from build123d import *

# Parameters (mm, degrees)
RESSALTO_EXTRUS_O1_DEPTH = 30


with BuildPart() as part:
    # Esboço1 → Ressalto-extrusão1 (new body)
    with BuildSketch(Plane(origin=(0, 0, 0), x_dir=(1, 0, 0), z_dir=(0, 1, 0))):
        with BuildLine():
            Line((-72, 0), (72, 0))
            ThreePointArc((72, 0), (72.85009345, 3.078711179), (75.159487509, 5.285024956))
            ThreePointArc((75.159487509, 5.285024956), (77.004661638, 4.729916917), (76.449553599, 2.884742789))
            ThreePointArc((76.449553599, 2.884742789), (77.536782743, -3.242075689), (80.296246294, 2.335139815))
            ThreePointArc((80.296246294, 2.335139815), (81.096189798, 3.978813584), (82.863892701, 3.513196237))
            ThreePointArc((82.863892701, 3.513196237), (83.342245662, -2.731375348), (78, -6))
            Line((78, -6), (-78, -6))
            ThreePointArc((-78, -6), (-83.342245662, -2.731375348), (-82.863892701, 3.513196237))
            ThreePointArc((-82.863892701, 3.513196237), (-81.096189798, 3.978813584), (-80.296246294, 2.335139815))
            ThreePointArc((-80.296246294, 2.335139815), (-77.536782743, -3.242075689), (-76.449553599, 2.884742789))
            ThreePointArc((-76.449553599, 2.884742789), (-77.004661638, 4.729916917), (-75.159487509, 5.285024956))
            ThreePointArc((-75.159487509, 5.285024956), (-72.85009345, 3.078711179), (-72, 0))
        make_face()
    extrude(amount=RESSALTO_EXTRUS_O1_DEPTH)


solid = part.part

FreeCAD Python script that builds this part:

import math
import FreeCAD as App
import Part
import Sketcher

V = App.Vector

doc = App.newDocument("Part")
body = doc.addObject("PartDesign::Body", "Body")

sketch1 = body.newObject("Sketcher::SketchObject", "Sketch")
sketch1.AttachmentSupport = (doc.getObject("XZ_Plane"), [""])
sketch1.MapMode = "FlatFace"
sketch1.addGeometry([
    Part.LineSegment(V(72, 0, 0), V(-72, 0, 0)),
    Part.ArcOfCircle(Part.Circle(V(-78, 0, 0), V(0, 0, 1), 6), math.radians(-62), math.radians(0)),
    Part.ArcOfCircle(Part.Circle(V(-75.8, -4.1, 0), V(0, 0, 1), 1.4), math.radians(118), math.radians(298)),
    Part.ArcOfCircle(Part.Circle(V(-78, 0, 0), V(0, 0, 1), 3.3), math.radians(-62), math.radians(225)),
    Part.ArcOfCircle(Part.Circle(V(-81.7, -2.7, 0), V(0, 0, 1), 1.4), math.radians(-144), math.radians(13)),
    Part.ArcOfCircle(Part.Circle(V(-78, 0, 0), V(0, 0, 1), 6), math.radians(90), math.radians(216)),
    Part.LineSegment(V(-78, 6, 0), V(78, 6, 0)),
    Part.ArcOfCircle(Part.Circle(V(78, 0, 0), V(0, 0, 1), 6), math.radians(-36), math.radians(90)),
    Part.ArcOfCircle(Part.Circle(V(81.7, -2.7, 0), V(0, 0, 1), 1.4), math.radians(167), math.radians(324)),
    Part.ArcOfCircle(Part.Circle(V(78, 0, 0), V(0, 0, 1), 3.3), math.radians(-45), math.radians(242)),
    Part.ArcOfCircle(Part.Circle(V(75.8, -4.1, 0), V(0, 0, 1), 1.4), math.radians(-118), math.radians(62)),
    Part.ArcOfCircle(Part.Circle(V(78, 0, 0), V(0, 0, 1), 6), math.radians(-180), math.radians(-118)),
], False)
sketch1.addConstraint([
    Sketcher.Constraint("Coincident", 0, 2, 1, 2),
    Sketcher.Constraint("Tangent", 1, 1, 2, 2),
    Sketcher.Constraint("Tangent", 2, 1, 3, 1),
    Sketcher.Constraint("Coincident", 3, 2, 4, 2),
    Sketcher.Constraint("Tangent", 4, 1, 5, 2),
    Sketcher.Constraint("Tangent", 5, 1, 6, 1),
    Sketcher.Constraint("Tangent", 6, 2, 7, 2),
    Sketcher.Constraint("Tangent", 7, 1, 8, 2),
    Sketcher.Constraint("Coincident", 8, 1, 9, 1),
    Sketcher.Constraint("Tangent", 9, 2, 10, 2),
    Sketcher.Constraint("Tangent", 10, 1, 11, 2),
    Sketcher.Constraint("Coincident", 11, 1, 0, 1),
    Sketcher.Constraint("Horizontal", 0),
    Sketcher.Constraint("Horizontal", 6),
    Sketcher.Constraint("Coincident", 3, 3, 1, 3),
    Sketcher.Constraint("Coincident", 5, 3, 1, 3),
    Sketcher.Constraint("Coincident", 9, 3, 7, 3),
    Sketcher.Constraint("Coincident", 11, 3, 7, 3),
    Sketcher.Constraint("Equal", 1, 5),
    Sketcher.Constraint("Equal", 5, 7),
    Sketcher.Constraint("Equal", 4, 8),
    Sketcher.Constraint("Equal", 3, 9),
    Sketcher.Constraint("Equal", 2, 10),
    Sketcher.Constraint("Symmetric", 1, 3, 7, 3, -1, 1),
    Sketcher.Constraint("PointOnObject", 0, 2, -1),
    Sketcher.Constraint("Horizontal", 4, 3, 8, 3),
    Sketcher.Constraint("Horizontal", 2, 3, 10, 3),
    Sketcher.Constraint("Radius", 1, 6.0),
    Sketcher.Constraint("DistanceX", 0, 2, 0, 1, 144.0),
    Sketcher.Constraint("Radius", 3, 3.275),
    Sketcher.Constraint("Radius", 4, 1.439896),
    Sketcher.Constraint("DistanceX", 2, 3, -1, 1, 75.804521),
    Sketcher.Constraint("DistanceY", 4, 3, -1, 1, 2.67009),
])
pad1 = body.newObject("PartDesign::Pad", "Pad")
pad1.Profile = sketch1
pad1.Length = 30
pad1.Reversed = True

doc.recompute()
